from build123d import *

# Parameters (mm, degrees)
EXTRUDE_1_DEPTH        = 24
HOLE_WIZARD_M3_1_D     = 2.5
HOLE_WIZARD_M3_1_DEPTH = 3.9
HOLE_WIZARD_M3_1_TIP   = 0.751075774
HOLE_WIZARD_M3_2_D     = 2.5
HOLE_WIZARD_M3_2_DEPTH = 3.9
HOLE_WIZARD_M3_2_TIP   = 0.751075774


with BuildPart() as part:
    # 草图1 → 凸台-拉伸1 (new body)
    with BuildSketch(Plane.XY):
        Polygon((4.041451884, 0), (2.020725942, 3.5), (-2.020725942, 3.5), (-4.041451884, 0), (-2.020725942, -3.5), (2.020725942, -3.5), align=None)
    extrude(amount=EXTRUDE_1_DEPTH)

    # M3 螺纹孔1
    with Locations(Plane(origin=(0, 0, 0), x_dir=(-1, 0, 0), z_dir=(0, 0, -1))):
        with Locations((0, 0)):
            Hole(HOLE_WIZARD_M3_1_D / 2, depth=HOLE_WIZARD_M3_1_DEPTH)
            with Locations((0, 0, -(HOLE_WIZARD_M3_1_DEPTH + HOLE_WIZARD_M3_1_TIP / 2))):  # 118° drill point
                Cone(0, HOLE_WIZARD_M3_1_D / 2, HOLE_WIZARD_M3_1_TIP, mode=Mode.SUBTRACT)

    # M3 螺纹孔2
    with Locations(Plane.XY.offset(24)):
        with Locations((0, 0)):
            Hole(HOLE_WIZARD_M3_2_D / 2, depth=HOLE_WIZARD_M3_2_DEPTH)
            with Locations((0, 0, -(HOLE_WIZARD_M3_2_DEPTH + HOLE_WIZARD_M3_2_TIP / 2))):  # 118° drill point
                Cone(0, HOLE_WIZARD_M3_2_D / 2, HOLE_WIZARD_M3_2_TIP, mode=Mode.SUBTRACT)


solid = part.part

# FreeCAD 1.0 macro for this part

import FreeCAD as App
import Part
import Sketcher

V = App.Vector
Q = App.Units.Quantity

doc = App.newDocument("Part")
body = doc.addObject("PartDesign::Body", "Body")

# Sketch on XY plane
sketch1 = doc.addObject("Sketcher::SketchObject", "Sketch")
body.addObject(sketch1)
sketch1.AttachmentSupport = (doc.XY_Plane, [""])
sketch1.MapMode = "FlatFace"
sketch1.addGeometry([
    Part.LineSegment(V(4.041452, 0, 0), V(2.020726, 3.5, 0)),  # 0
    Part.LineSegment(V(2.020726, 3.5, 0), V(-2.020726, 3.5, 0)),  # 1
    Part.LineSegment(V(-2.020726, 3.5, 0), V(-4.041452, 0, 0)),  # 2
    Part.LineSegment(V(-4.041452, 0, 0), V(-2.020726, -3.5, 0)),  # 3
    Part.LineSegment(V(-2.020726, -3.5, 0), V(2.020726, -3.5, 0)),  # 4
    Part.LineSegment(V(2.020726, -3.5, 0), V(4.041452, 0, 0)),  # 5
], False)
sketch1.addConstraint([
    Sketcher.Constraint("Coincident", 0, 2, 1, 1),
    Sketcher.Constraint("Coincident", 1, 2, 2, 1),
    Sketcher.Constraint("Coincident", 2, 2, 3, 1),
    Sketcher.Constraint("Coincident", 3, 2, 4, 1),
    Sketcher.Constraint("Coincident", 4, 2, 5, 1),
    Sketcher.Constraint("Coincident", 5, 2, 0, 1),
    Sketcher.Constraint("Horizontal", 1),
    Sketcher.Constraint("Horizontal", 4),
    Sketcher.Constraint("Symmetric", 0, 2, 3, 2, -1, 1),
    Sketcher.Constraint("Symmetric", 2, 2, 5, 2, -1, 1),
    Sketcher.Constraint("PointOnObject", 2, 2, -1),
    Sketcher.Constraint("Parallel", 2, 5),
    Sketcher.Constraint("Vertical", 1, 2, 3, 2),
    Sketcher.Constraint("Angle", 0, Q("120 deg")),
    Sketcher.Constraint("DistanceY", 3, 2, 1, 2, Q("7 mm")),
    Sketcher.Constraint("DistanceX", 1, 2, 1, 1, Q("4.041452 mm")),
])
pad1 = doc.addObject("PartDesign::Pad", "Pad")
body.addObject(pad1)
pad1.Profile = sketch1
pad1.Length = 24

# Sketch on XY plane
sketch2 = doc.addObject("Sketcher::SketchObject", "Sketch001")
body.addObject(sketch2)
sketch2.AttachmentSupport = (doc.XY_Plane, [""])
sketch2.MapMode = "FlatFace"
sketch2.addGeometry(Part.Circle(V(0, 0, 0), V(0, 0, 1), 1.25), False)
sketch2.addConstraint([
    Sketcher.Constraint("Coincident", 0, 3, -1, 1),
    Sketcher.Constraint("Diameter", 0, Q("2.5 mm")),
])
doc.recompute()
hole = doc.addObject("PartDesign::Hole", "Hole")
body.addObject(hole)
hole.Profile = sketch2
hole.ThreadType = "None"
hole.Diameter = 2.5
hole.DepthType = "Dimension"
hole.Depth = 3.9
hole.DrillPoint = "Angled"
hole.DrillPointAngle = 118
hole.Reversed = True

# Sketch on XY plane
sketch3 = doc.addObject("Sketcher::SketchObject", "Sketch002")
body.addObject(sketch3)
sketch3.AttachmentSupport = (doc.XY_Plane, [""])
sketch3.MapMode = "FlatFace"
sketch3.AttachmentOffset = App.Placement(V(0, 0, 24), App.Rotation())
sketch3.addGeometry(Part.Circle(V(0, 0, 0), V(0, 0, 1), 1.25), False)
sketch3.addConstraint([
    Sketcher.Constraint("Coincident", 0, 3, -1, 1),
    Sketcher.Constraint("Diameter", 0, Q("2.5 mm")),
])
doc.recompute()
hole2 = doc.addObject("PartDesign::Hole", "Hole001")
body.addObject(hole2)
hole2.Profile = sketch3
hole2.ThreadType = "None"
hole2.Diameter = 2.5
hole2.DepthType = "Dimension"
hole2.Depth = 3.9
hole2.DrillPoint = "Angled"
hole2.DrillPointAngle = 118

doc.recompute()
